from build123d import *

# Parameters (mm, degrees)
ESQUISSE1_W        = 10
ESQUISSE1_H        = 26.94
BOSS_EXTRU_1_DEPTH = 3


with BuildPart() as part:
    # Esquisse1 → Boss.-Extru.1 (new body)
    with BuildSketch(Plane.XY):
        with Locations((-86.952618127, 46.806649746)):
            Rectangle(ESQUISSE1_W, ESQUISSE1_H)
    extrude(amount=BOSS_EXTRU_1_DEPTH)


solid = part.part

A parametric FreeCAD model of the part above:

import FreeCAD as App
import Part
import Sketcher
from FreeCAD import Vector

doc = App.newDocument("Part")
body = doc.addObject("PartDesign::Body", "Body")

# Sketch on XY plane
sketch1 = body.newObject("Sketcher::SketchObject", "Sketch")
sketch1.AttachmentSupport = (doc.getObject("XY_Plane"), [""])
sketch1.MapMode = "FlatFace"
sketch1.addGeometry(Part.LineSegment(Vector(-92, 60, 0), Vector(-92, 33, 0)), False)
sketch1.addGeometry(Part.LineSegment(Vector(-92, 33, 0), Vector(-82, 33, 0)), False)
sketch1.addGeometry(Part.LineSegment(Vector(-82, 33, 0), Vector(-82, 60, 0)), False)
sketch1.addGeometry(Part.LineSegment(Vector(-82, 60, 0), Vector(-92, 60, 0)), False)
sketch1.addConstraint(Sketcher.Constraint("Coincident", 0, 2, 1, 1))
sketch1.addConstraint(Sketcher.Constraint("Coincident", 1, 2, 2, 1))
sketch1.addConstraint(Sketcher.Constraint("Coincident", 2, 2, 3, 1))
sketch1.addConstraint(Sketcher.Constraint("Coincident", 3, 2, 0, 1))
sketch1.addConstraint(Sketcher.Constraint("Vertical", 0))
sketch1.addConstraint(Sketcher.Constraint("Horizontal", 1))
sketch1.addConstraint(Sketcher.Constraint("Vertical", 2))
sketch1.addConstraint(Sketcher.Constraint("Horizontal", 3))
sketch1.addConstraint(Sketcher.Constraint("DistanceX", 1, 1, 1, 2, 10.0))
sketch1.addConstraint(Sketcher.Constraint("DistanceY", 0, 2, 0, 1, 26.94))
sketch1.addConstraint(Sketcher.Constraint("DistanceX", 0, 2, -1, 1, 91.952618))
sketch1.addConstraint(Sketcher.Constraint("DistanceY", -1, 1, 0, 2, 33.33665))
pad1 = body.newObject("PartDesign::Pad", "Pad")
pad1.Profile = sketch1
pad1.Length = 3

doc.recompute()
